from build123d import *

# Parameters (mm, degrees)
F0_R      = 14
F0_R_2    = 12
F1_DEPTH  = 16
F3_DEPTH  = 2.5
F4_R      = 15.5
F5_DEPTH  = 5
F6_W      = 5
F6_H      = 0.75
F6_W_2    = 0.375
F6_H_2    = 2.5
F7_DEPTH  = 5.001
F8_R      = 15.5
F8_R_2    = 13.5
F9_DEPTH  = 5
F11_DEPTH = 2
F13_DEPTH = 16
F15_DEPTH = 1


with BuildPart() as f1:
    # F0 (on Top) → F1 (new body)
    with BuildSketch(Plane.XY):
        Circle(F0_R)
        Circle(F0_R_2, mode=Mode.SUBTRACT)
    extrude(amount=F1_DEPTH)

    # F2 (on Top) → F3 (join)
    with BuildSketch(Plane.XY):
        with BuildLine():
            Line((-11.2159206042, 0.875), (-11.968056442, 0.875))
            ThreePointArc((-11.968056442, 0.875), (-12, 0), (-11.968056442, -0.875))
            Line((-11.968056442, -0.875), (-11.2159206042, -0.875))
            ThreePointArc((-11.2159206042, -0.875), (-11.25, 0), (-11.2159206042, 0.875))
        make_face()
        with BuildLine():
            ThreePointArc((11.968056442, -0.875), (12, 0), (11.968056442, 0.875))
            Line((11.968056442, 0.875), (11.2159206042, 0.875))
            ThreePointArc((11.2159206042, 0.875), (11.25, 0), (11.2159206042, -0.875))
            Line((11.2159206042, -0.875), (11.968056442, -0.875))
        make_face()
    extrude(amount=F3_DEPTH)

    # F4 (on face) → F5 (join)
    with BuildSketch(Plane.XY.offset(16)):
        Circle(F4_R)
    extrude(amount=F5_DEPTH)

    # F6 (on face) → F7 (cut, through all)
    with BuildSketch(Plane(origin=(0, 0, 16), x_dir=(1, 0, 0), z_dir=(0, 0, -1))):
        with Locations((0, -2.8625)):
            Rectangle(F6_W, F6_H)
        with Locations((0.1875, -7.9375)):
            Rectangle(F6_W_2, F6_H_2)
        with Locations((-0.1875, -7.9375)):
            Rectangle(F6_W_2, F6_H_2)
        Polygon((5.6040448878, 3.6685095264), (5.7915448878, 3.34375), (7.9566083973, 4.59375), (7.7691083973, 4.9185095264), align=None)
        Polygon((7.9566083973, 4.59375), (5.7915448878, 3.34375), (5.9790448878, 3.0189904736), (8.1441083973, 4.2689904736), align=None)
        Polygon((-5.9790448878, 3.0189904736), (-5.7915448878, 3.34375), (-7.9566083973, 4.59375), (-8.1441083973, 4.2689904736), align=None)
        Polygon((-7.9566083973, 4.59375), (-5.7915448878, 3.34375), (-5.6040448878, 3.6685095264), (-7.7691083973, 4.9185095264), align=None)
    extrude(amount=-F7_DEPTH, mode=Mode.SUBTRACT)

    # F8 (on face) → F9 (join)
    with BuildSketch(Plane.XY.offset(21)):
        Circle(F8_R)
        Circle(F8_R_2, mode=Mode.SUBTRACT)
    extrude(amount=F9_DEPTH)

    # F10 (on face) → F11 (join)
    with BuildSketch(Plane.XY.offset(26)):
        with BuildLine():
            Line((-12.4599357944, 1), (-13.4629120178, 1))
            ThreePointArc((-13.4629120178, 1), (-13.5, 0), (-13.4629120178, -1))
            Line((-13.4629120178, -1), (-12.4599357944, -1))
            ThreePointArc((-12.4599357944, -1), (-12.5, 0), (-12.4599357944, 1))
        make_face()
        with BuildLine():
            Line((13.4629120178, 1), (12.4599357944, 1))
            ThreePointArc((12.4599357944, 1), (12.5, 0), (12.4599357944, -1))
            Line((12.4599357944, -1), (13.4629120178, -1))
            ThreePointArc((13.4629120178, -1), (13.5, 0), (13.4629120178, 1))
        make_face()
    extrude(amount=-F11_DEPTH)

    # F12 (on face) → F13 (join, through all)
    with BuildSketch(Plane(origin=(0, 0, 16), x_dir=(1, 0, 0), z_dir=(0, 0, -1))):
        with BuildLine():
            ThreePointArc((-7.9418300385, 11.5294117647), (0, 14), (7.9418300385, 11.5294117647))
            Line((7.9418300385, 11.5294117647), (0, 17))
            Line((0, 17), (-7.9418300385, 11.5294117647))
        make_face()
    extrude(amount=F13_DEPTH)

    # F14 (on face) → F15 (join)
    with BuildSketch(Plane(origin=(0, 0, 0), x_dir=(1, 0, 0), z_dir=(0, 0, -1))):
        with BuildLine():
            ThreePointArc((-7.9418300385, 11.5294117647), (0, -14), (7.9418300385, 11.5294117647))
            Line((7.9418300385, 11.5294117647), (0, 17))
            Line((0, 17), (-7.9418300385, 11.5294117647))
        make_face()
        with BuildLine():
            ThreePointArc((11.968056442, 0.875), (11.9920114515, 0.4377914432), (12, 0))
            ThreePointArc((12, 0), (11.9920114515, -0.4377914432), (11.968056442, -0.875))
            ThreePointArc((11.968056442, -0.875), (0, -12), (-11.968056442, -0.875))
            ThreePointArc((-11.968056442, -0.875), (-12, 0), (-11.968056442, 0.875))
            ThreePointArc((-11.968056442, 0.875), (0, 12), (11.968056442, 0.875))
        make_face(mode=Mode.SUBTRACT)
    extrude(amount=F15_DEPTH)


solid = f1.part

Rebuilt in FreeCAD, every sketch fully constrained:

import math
import FreeCAD as App
import Part
import Sketcher

V = App.Vector
Q = App.Units.Quantity


def add_polygon(sketch, points):
    """Adds a closed chain of lines whose ends are joined by coincident constraints."""
    first, n = sketch.GeometryCount, len(points)
    for a, b in zip(points, points[1:] + points[:1]):
        sketch.addGeometry(Part.LineSegment(App.Vector(*a, 0), App.Vector(*b, 0)), False)
    for i in range(n):
        sketch.addConstraint(Sketcher.Constraint("Coincident", first + i, 2, first + (i + 1) % n, 1))

doc = App.newDocument("Part")
body = doc.addObject("PartDesign::Body", "Body")

# Sketch on XY plane
sketch1 = doc.addObject("Sketcher::SketchObject", "Sketch")
body.addObject(sketch1)
sketch1.AttachmentSupport = (doc.XY_Plane, [""])
sketch1.MapMode = "FlatFace"
sketch1.addGeometry([
    Part.Circle(V(0, 0, 0), V(0, 0, 1), 14),
    Part.Circle(V(0, 0, 0), V(0, 0, 1), 12),
], False)
sketch1.addConstraint([
    Sketcher.Constraint("Coincident", 0, 3, -1, 1),
    Sketcher.Constraint("Coincident", 1, 3, -1, 1),
    Sketcher.Constraint("Diameter", 0, Q("28 mm")),
    Sketcher.Constraint("Diameter", 1, Q("24 mm")),
])
pad1 = doc.addObject("PartDesign::Pad", "Pad")
body.addObject(pad1)
pad1.Profile = sketch1
pad1.Length = 16

# Sketch on XY plane
sketch2 = doc.addObject("Sketcher::SketchObject", "Sketch001")
body.addObject(sketch2)
sketch2.AttachmentSupport = (doc.XY_Plane, [""])
sketch2.MapMode = "FlatFace"
sketch2.addGeometry([
    Part.LineSegment(V(-11.215921, 0.875, 0), V(-11.968056, 0.875, 0)),  # 0
    Part.ArcOfCircle(Part.Circle(V(0, 0, 0), V(0, 0, 1), 12), math.radians(175.818472), math.radians(184.181528)),  # 1
    Part.LineSegment(V(-11.968056, -0.875, 0), V(-11.215921, -0.875, 0)),  # 2
    Part.ArcOfCircle(Part.Circle(V(0, 0, 0), V(0, 0, 1), 11.25), math.radians(175.539156), math.radians(184.460844)),  # 3
    Part.ArcOfCircle(Part.Circle(V(0, 0, 0), V(0, 0, 1), 12), math.radians(-4.181528), math.radians(4.181528)),  # 4
    Part.LineSegment(V(11.968056, 0.875, 0), V(11.215921, 0.875, 0)),  # 5
    Part.ArcOfCircle(Part.Circle(V(0, 0, 0), V(0, 0, 1), 11.25), math.radians(-4.460844), math.radians(4.460844)),  # 6
    Part.LineSegment(V(11.215921, -0.875, 0), V(11.968056, -0.875, 0)),  # 7
], False)
sketch2.addConstraint([
    Sketcher.Constraint("Coincident", 0, 2, 1, 1),
    Sketcher.Constraint("Coincident", 1, 2, 2, 1),
    Sketcher.Constraint("Coincident", 2, 2, 3, 2),
    Sketcher.Constraint("Coincident", 3, 1, 0, 1),
    Sketcher.Constraint("Coincident", 4, 2, 5, 1),
    Sketcher.Constraint("Coincident", 5, 2, 6, 2),
    Sketcher.Constraint("Coincident", 6, 1, 7, 1),
    Sketcher.Constraint("Coincident", 7, 2, 4, 1),
    Sketcher.Constraint("Horizontal", 0),
    Sketcher.Constraint("Horizontal", 2),
    Sketcher.Constraint("Horizontal", 5),
    Sketcher.Constraint("Horizontal", 7),
    Sketcher.Constraint("Coincident", 1, 3, -1, 1),
    Sketcher.Constraint("Coincident", 3, 3, -1, 1),
    Sketcher.Constraint("Coincident", 4, 3, -1, 1),
    Sketcher.Constraint("Coincident", 6, 3, -1, 1),
    Sketcher.Constraint("Equal", 1, 4),
    Sketcher.Constraint("Equal", 3, 6),
    Sketcher.Constraint("Horizontal", 3, 1, 4, 2),
    Sketcher.Constraint("Horizontal", 2, 2, 6, 1),
    Sketcher.Constraint("Vertical", 0, 2, 1, 2),
    Sketcher.Constraint("Radius", 1, Q("12 mm")),
    Sketcher.Constraint("Radius", 3, Q("11.25 mm")),
    Sketcher.Constraint("DistanceY", 1, 2, 0, 2, Q("1.75 mm")),
])
pad2 = doc.addObject("PartDesign::Pad", "Pad001")
body.addObject(pad2)
pad2.Profile = sketch2
pad2.Length = 2.5

# Sketch on XY plane
sketch3 = doc.addObject("Sketcher::SketchObject", "Sketch002")
body.addObject(sketch3)
sketch3.AttachmentSupport = (doc.XY_Plane, [""])
sketch3.MapMode = "FlatFace"
sketch3.AttachmentOffset = App.Placement(V(0, 0, 16), App.Rotation())
sketch3.addGeometry(Part.Circle(V(0, 0, 0), V(0, 0, 1), 15.5), False)
sketch3.addConstraint([
    Sketcher.Constraint("Coincident", 0, 3, -1, 1),
    Sketcher.Constraint("Diameter", 0, Q("31 mm")),
])
pad3 = doc.addObject("PartDesign::Pad", "Pad002")
body.addObject(pad3)
pad3.Profile = sketch3
pad3.Length = 5

# Sketch on XY plane
sketch4 = doc.addObject("Sketcher::SketchObject", "Sketch003")
body.addObject(sketch4)
sketch4.AttachmentSupport = (doc.XY_Plane, [""])
sketch4.MapMode = "FlatFace"
sketch4.AttachmentOffset = App.Placement(V(0, 0, 16), App.Rotation())
add_polygon(sketch4, [(-2.5, 2.4875), (-2.5, 3.2375), (2.5, 3.2375), (2.5, 2.4875)])  # lines 0-3
add_polygon(sketch4, [(0.375, 9.1875), (0.375, 6.6875), (-0.375, 6.6875), (-0.375, 9.1875)])  # lines 4-7
add_polygon(sketch4, [(5.604045, -3.66851), (5.979045, -3.01899), (8.144108, -4.26899), (7.769108, -4.91851)])  # lines 8-11
add_polygon(sketch4, [(-5.979045, -3.01899), (-5.604045, -3.66851), (-7.769108, -4.91851), (-8.144108, -4.26899)])  # lines 12-15
sketch4.addConstraint([
    Sketcher.Constraint("Vertical", 0),
    Sketcher.Constraint("Horizontal", 1),
    Sketcher.Constraint("Vertical", 2),
    Sketcher.Constraint("Horizontal", 3),
    Sketcher.Constraint("Vertical", 4),
    Sketcher.Constraint("Horizontal", 5),
    Sketcher.Constraint("Vertical", 6),
    Sketcher.Constraint("Horizontal", 7),
    Sketcher.Constraint("Symmetric", 11, 2, 12, 2, -2),
    Sketcher.Constraint("Symmetric", 10, 2, 13, 2, -2),
    Sketcher.Constraint("Symmetric", 9, 2, 14, 2, -2),
    Sketcher.Constraint("Symmetric", 8, 2, 15, 2, -2),
    Sketcher.Constraint("Perpendicular", 8, 9),
    Sketcher.Constraint("Perpendicular", 9, 10),
    Sketcher.Constraint("Perpendicular", 10, 11),
    Sketcher.Constraint("Equal", 7, 0),
    Sketcher.Constraint("DistanceX", 1, 1, 1, 2, Q("5 mm")),
    Sketcher.Constraint("Angle", 8, Q("60 deg")),
    Sketcher.Constraint("DistanceY", 4, 2, 4, 1, Q("2.5 mm")),
    Sketcher.Constraint("Distance", 9, Q("2.5 mm")),
    Sketcher.Constraint("DistanceX", 5, 2, 5, 1, Q("0.75 mm")),
    Sketcher.Constraint("DistanceX", 0, 2, -1, 1, Q("2.5 mm")),
    Sketcher.Constraint("DistanceY", 2, 2, 4, 2, Q("4.2 mm")),
    Sketcher.Constraint("Distance", 8, Q("0.75 mm")),
    Sketcher.Constraint("DistanceX", -1, 1, 4, 2, Q("0.375 mm")),
    Sketcher.Constraint("DistanceY", -1, 1, 0, 2, Q("3.2375 mm")),
    Sketcher.Constraint("DistanceY", 8, 2, -1, 1, Q("3.01899 mm")),
    Sketcher.Constraint("DistanceX", -1, 1, 9, 2, Q("8.144108 mm")),
])
pocket1 = doc.addObject("PartDesign::Pocket", "Pocket")
body.addObject(pocket1)
pocket1.Profile = sketch4
pocket1.Type = "ThroughAll"
pocket1.Reversed = True

# Sketch on XY plane
sketch5 = doc.addObject("Sketcher::SketchObject", "Sketch004")
body.addObject(sketch5)
sketch5.AttachmentSupport = (doc.XY_Plane, [""])
sketch5.MapMode = "FlatFace"
sketch5.AttachmentOffset = App.Placement(V(0, 0, 21), App.Rotation())
sketch5.addGeometry([
    Part.Circle(V(0, 0, 0), V(0, 0, 1), 15.5),
    Part.Circle(V(0, 0, 0), V(0, 0, 1), 13.5),
], False)
sketch5.addConstraint([
    Sketcher.Constraint("Coincident", 0, 3, -1, 1),
    Sketcher.Constraint("Coincident", 1, 3, -1, 1),
    Sketcher.Constraint("Diameter", 0, Q("31 mm")),
    Sketcher.Constraint("Diameter", 1, Q("27 mm")),
])
pad4 = doc.addObject("PartDesign::Pad", "Pad003")
body.addObject(pad4)
pad4.Profile = sketch5
pad4.Length = 5

# Sketch on XY plane
sketch6 = doc.addObject("Sketcher::SketchObject", "Sketch005")
body.addObject(sketch6)
sketch6.AttachmentSupport = (doc.XY_Plane, [""])
sketch6.MapMode = "FlatFace"
sketch6.AttachmentOffset = App.Placement(V(0, 0, 26), App.Rotation())
sketch6.addGeometry([
    Part.LineSegment(V(-12.459936, 1, 0), V(-13.462912, 1, 0)),  # 0
    Part.ArcOfCircle(Part.Circle(V(0, 0, 0), V(0, 0, 1), 13.5), math.radians(175.751977), math.radians(184.248023)),  # 1
    Part.LineSegment(V(-13.462912, -1, 0), V(-12.459936, -1, 0)),  # 2
    Part.ArcOfCircle(Part.Circle(V(0, 0, 0), V(0, 0, 1), 12.5), math.radians(175.411434), math.radians(184.588566)),  # 3
    Part.LineSegment(V(13.462912, 1, 0), V(12.459936, 1, 0)),  # 4
    Part.ArcOfCircle(Part.Circle(V(0, 0, 0), V(0, 0, 1), 12.5), math.radians(-4.588566), math.radians(4.588566)),  # 5
    Part.LineSegment(V(12.459936, -1, 0), V(13.462912, -1, 0)),  # 6
    Part.ArcOfCircle(Part.Circle(V(0, 0, 0), V(0, 0, 1), 13.5), math.radians(-4.248023), math.radians(4.248023)),  # 7
], False)
sketch6.addConstraint([
    Sketcher.Constraint("Coincident", 0, 2, 1, 1),
    Sketcher.Constraint("Coincident", 1, 2, 2, 1),
    Sketcher.Constraint("Coincident", 2, 2, 3, 2),
    Sketcher.Constraint("Coincident", 3, 1, 0, 1),
    Sketcher.Constraint("Coincident", 4, 2, 5, 2),
    Sketcher.Constraint("Coincident", 5, 1, 6, 1),
    Sketcher.Constraint("Coincident", 6, 2, 7, 1),
    Sketcher.Constraint("Coincident", 7, 2, 4, 1),
    Sketcher.Constraint("Horizontal", 0),
    Sketcher.Constraint("Horizontal", 2),
    Sketcher.Constraint("Horizontal", 4),
    Sketcher.Constraint("Horizontal", 6),
    Sketcher.Constraint("Coincident", 1, 3, -1, 1),
    Sketcher.Constraint("Coincident", 3, 3, -1, 1),
    Sketcher.Constraint("Coincident", 5, 3, -1, 1),
    Sketcher.Constraint("Coincident", 7, 3, -1, 1),
    Sketcher.Constraint("Equal", 3, 5),
    Sketcher.Constraint("Equal", 1, 7),
    Sketcher.Constraint("Horizontal", 3, 1, 4, 2),
    Sketcher.Constraint("Horizontal", 2, 2, 5, 1),
    Sketcher.Constraint("Vertical", 0, 2, 1, 2),
    Sketcher.Constraint("Radius", 1, Q("13.5 mm")),
    Sketcher.Constraint("Radius", 3, Q("12.5 mm")),
    Sketcher.Constraint("DistanceY", -1, 1, 0, 2, Q("1 mm")),
])
pad5 = doc.addObject("PartDesign::Pad", "Pad004")
body.addObject(pad5)
pad5.Profile = sketch6
pad5.Length = 2
pad5.Reversed = True

# Sketch on XY plane
sketch7 = doc.addObject("Sketcher::SketchObject", "Sketch006")
body.addObject(sketch7)
sketch7.AttachmentSupport = (doc.XY_Plane, [""])
sketch7.MapMode = "FlatFace"
sketch7.AttachmentOffset = App.Placement(V(0, 0, 16), App.Rotation())
sketch7.addGeometry([
    Part.ArcOfCircle(Part.Circle(V(0, 0, 0), V(0, 0, 1), 14), math.radians(-124.560322), math.radians(-55.439678)),
    Part.LineSegment(V(7.94183, -11.529412, 0), V(0, -17, 0)),
    Part.LineSegment(V(0, -17, 0), V(-7.94183, -11.529412, 0)),
], False)
sketch7.addConstraint([
    Sketcher.Constraint("Tangent", 0, 2, 1, 1),
    Sketcher.Constraint("Coincident", 1, 2, 2, 1),
    Sketcher.Constraint("Tangent", 2, 2, 0, 1),
    Sketcher.Constraint("Coincident", 0, 3, -1, 1),
    Sketcher.Constraint("PointOnObject", 1, 2, -2),
    Sketcher.Constraint("Radius", 0, Q("14 mm")),
    Sketcher.Constraint("DistanceY", 1, 2, -1, 1, Q("17 mm")),
])
pad6 = doc.addObject("PartDesign::Pad", "Pad005")
body.addObject(pad6)
pad6.Profile = sketch7
pad6.Length = 16
pad6.Reversed = True

# Sketch on XY plane
sketch8 = doc.addObject("Sketcher::SketchObject", "Sketch007")
body.addObject(sketch8)
sketch8.AttachmentSupport = (doc.XY_Plane, [""])
sketch8.MapMode = "FlatFace"
sketch8.addGeometry([
    Part.ArcOfCircle(Part.Circle(V(0, 0, 0), V(0, 0, 1), 14), math.radians(-55.439678), math.radians(235.439678)),  # 0
    Part.LineSegment(V(7.94183, -11.529412, 0), V(0, -17, 0)),  # 1
    Part.LineSegment(V(0, -17, 0), V(-7.94183, -11.529412, 0)),  # 2
    Part.ArcOfCircle(Part.Circle(V(0, 0, 0), V(0, 0, 1), 12), math.radians(-175.818472), math.radians(-4.181528)),  # 3
    Part.ArcOfCircle(Part.Circle(V(0, 0, 0), V(0, 0, 1), 12), math.radians(-4.181528), math.radians(0)),  # 4
    Part.ArcOfCircle(Part.Circle(V(0, 0, 0), V(0, 0, 1), 12), math.radians(0), math.radians(4.181528)),  # 5
    Part.ArcOfCircle(Part.Circle(V(0, 0, 0), V(0, 0, 1), 12), math.radians(4.181528), math.radians(175.818472)),  # 6
    Part.ArcOfCircle(Part.Circle(V(0, 0, 0), V(0, 0, 1), 12), math.radians(175.818472), math.radians(184.181528)),  # 7
], False)
sketch8.addConstraint([
    Sketcher.Constraint("Tangent", 0, 1, 1, 1),
    Sketcher.Constraint("Coincident", 1, 2, 2, 1),
    Sketcher.Constraint("Tangent", 2, 2, 0, 2),
    Sketcher.Constraint("Tangent", 3, 2, 4, 1),
    Sketcher.Constraint("Tangent", 4, 2, 5, 1),
    Sketcher.Constraint("Tangent", 5, 2, 6, 1),
    Sketcher.Constraint("Tangent", 6, 2, 7, 1),
    Sketcher.Constraint("Tangent", 7, 2, 3, 1),
    Sketcher.Constraint("Coincident", 0, 3, -1, 1),
    Sketcher.Constraint("Coincident", 3, 3, -1, 1),
    Sketcher.Constraint("Coincident", 5, 3, -1, 1),
    Sketcher.Constraint("PointOnObject", 1, 2, -2),
    Sketcher.Constraint("PointOnObject", 4, 2, -1),
    Sketcher.Constraint("Horizontal", 5, 2, 6, 2),
    Sketcher.Constraint("Horizontal", 3, 2, 7, 2),
    Sketcher.Constraint("Vertical", 3, 2, 5, 2),
    Sketcher.Constraint("Radius", 0, Q("14 mm")),
    Sketcher.Constraint("Radius", 3, Q("12 mm")),
    Sketcher.Constraint("DistanceY", 1, 2, -1, 1, Q("17 mm")),
    Sketcher.Constraint("DistanceY", 3, 2, 5, 2, Q("1.75 mm")),
])
pad7 = doc.addObject("PartDesign::Pad", "Pad006")
body.addObject(pad7)
pad7.Profile = sketch8
pad7.Length = 1
pad7.Reversed = True

doc.recompute()
